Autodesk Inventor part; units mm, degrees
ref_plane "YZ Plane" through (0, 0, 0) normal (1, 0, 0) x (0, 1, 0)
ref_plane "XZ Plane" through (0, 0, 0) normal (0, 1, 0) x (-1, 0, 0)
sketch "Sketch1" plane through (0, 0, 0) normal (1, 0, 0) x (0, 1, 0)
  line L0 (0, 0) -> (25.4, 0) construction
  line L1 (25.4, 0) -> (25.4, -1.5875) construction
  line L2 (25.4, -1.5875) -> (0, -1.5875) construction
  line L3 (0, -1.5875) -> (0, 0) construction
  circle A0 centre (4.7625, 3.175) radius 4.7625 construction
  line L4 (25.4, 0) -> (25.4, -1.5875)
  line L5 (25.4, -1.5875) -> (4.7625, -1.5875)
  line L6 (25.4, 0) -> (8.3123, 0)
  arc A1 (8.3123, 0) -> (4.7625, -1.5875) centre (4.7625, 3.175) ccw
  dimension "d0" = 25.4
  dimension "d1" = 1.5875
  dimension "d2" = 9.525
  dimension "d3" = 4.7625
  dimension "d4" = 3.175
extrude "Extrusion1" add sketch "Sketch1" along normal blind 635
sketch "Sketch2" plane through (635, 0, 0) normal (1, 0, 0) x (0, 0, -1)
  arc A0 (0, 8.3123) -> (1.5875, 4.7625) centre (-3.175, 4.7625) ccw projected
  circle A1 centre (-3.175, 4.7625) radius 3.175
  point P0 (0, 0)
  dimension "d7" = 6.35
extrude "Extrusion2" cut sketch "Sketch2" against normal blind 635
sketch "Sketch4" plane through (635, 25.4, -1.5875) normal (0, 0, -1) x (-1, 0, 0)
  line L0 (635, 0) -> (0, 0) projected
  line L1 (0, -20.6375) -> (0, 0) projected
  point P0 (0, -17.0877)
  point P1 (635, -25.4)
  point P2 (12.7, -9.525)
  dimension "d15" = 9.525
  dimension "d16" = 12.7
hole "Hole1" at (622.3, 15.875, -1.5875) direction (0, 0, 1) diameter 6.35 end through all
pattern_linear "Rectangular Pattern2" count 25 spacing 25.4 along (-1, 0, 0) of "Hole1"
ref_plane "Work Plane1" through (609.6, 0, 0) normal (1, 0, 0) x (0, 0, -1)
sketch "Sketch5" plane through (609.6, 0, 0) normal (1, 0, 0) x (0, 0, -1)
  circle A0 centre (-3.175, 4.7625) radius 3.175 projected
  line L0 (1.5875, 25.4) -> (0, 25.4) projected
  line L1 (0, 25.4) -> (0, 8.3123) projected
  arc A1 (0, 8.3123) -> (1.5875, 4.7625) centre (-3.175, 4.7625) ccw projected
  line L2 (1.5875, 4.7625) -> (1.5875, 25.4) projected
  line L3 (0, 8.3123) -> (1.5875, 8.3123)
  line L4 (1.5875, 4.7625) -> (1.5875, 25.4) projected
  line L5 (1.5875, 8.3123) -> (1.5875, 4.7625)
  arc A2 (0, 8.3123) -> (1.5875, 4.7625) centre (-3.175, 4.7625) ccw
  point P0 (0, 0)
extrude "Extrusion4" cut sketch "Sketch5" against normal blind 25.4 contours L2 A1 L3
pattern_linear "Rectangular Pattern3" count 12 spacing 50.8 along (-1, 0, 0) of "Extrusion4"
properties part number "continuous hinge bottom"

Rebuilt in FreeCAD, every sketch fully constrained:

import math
import FreeCAD as App
import Part
import Sketcher
Q = App.Units.Quantity

doc = App.newDocument("Part")
body = doc.addObject("PartDesign::Body", "Body")

# Sketch on YZ plane
sketch1 = body.newObject("Sketcher::SketchObject", "Sketch")
sketch1.AttachmentSupport = (doc.getObject("YZ_Plane"), [""])
sketch1.MapMode = "FlatFace"
sketch1.addGeometry([
    Part.LineSegment(App.Vector(25.4, -1.6, 0), App.Vector(25.4, 0, 0)),
    Part.LineSegment(App.Vector(25.4, 0, 0), App.Vector(8.3, 0, 0)),
    Part.ArcOfCircle(Part.Circle(App.Vector(4.8, 3.2, 0), App.Vector(0, 0, 1), 4.8), math.radians(-42), math.radians(270)),
    Part.LineSegment(App.Vector(4.8, -1.6, 0), App.Vector(25.4, -1.6, 0)),
], False)
sketch1.addConstraint([
    Sketcher.Constraint("Coincident", 0, 2, 1, 1),
    Sketcher.Constraint("Coincident", 1, 2, 2, 1),
    Sketcher.Constraint("Tangent", 2, 2, 3, 1),
    Sketcher.Constraint("Coincident", 3, 2, 0, 1),
    Sketcher.Constraint("Vertical", 0),
    Sketcher.Constraint("Horizontal", 1),
    Sketcher.Constraint("Horizontal", 3),
    Sketcher.Constraint("PointOnObject", 0, 2, -1),
    Sketcher.Constraint("DistanceX", -1, 1, 0, 2, Q("1 in")),
    Sketcher.Constraint("Radius", 2, Q("0.1875 in")),
    Sketcher.Constraint("DistanceY", 0, 1, 0, 2, Q("0.0625 in")),
    Sketcher.Constraint("DistanceX", -1, 1, 2, 3, Q("0.1875 in")),
])
pad1 = body.newObject("PartDesign::Pad", "Pad")
pad1.Profile = sketch1
pad1.Length = Q("25 in")

# Sketch on YZ plane
sketch2 = body.newObject("Sketcher::SketchObject", "Sketch001")
sketch2.AttachmentSupport = (doc.getObject("YZ_Plane"), [""])
sketch2.MapMode = "FlatFace"
sketch2.AttachmentOffset = App.Placement(App.Vector(0, 0, 25 * 25.4), App.Rotation())
sketch2.addGeometry(Part.Circle(App.Vector(4.8, 3.2, 0), App.Vector(0, 0, 1), 3.2), False)
sketch2.addConstraint([
    Sketcher.Constraint("Diameter", 0, Q("0.25 in")),
    Sketcher.Constraint("DistanceX", -1, 1, 0, 3, Q("0.1875 in")),
    Sketcher.Constraint("DistanceY", -1, 1, 0, 3, Q("0.125 in")),
])
pocket1 = body.newObject("PartDesign::Pocket", "Pocket")
pocket1.Profile = sketch2
pocket1.Length = Q("25 in")

# Sketch on XY plane
sketch3 = body.newObject("Sketcher::SketchObject", "Sketch002")
sketch3.AttachmentSupport = (doc.getObject("XY_Plane"), [""])
sketch3.MapMode = "FlatFace"
sketch3.AttachmentOffset = App.Placement(App.Vector(0, 0, -0.0625 * 25.4), App.Rotation())
sketch3.addGeometry(Part.Circle(App.Vector(622.3, 15.9, 0), App.Vector(0, 0, 1), 3.2), False)
sketch3.addConstraint([
    Sketcher.Constraint("Diameter", 0, Q("0.25 in")),
    Sketcher.Constraint("DistanceX", -1, 1, 0, 3, Q("24.5 in")),
    Sketcher.Constraint("DistanceY", -1, 1, 0, 3, Q("0.625 in")),
])
doc.recompute()
hole = body.newObject("PartDesign::Hole", "Hole")
hole.Profile = sketch3
hole.ThreadType = "None"
hole.Diameter = Q("0.25 in")
hole.DepthType = "ThroughAll"
hole.Reversed = True
doc.recompute()

linearpattern = body.newObject("PartDesign::LinearPattern", "LinearPattern")
linearpattern.Originals = [hole]
linearpattern.Direction = (doc.getObject("X_Axis"), [""])
linearpattern.Mode = "offset"
linearpattern.Offset = Q("1 in")
linearpattern.Occurrences = 25
linearpattern.Reversed = True
body.Tip = linearpattern

# Sketch on YZ plane
sketch4 = body.newObject("Sketcher::SketchObject", "Sketch003")
sketch4.AttachmentSupport = (doc.getObject("YZ_Plane"), [""])
sketch4.MapMode = "FlatFace"
sketch4.AttachmentOffset = App.Placement(App.Vector(0, 0, 24 * 25.4), App.Rotation())
sketch4.addGeometry([
    Part.LineSegment(App.Vector(4.8, -1.6, 0), App.Vector(8.3, -1.6, 0)),
    Part.LineSegment(App.Vector(8.3, -1.6, 0), App.Vector(8.3, 0, 0)),
    Part.ArcOfCircle(Part.Circle(App.Vector(4.8, 3.2, 0), App.Vector(0, 0, 1), 4.8), math.radians(-42), math.radians(270)),
    Part.Circle(App.Vector(4.8, 3.2, 0), App.Vector(0, 0, 1), 3.2),
], False)
sketch4.addConstraint([
    Sketcher.Constraint("Coincident", 0, 2, 1, 1),
    Sketcher.Constraint("Coincident", 1, 2, 2, 1),
    Sketcher.Constraint("Tangent", 2, 2, 0, 1),
    Sketcher.Constraint("Horizontal", 0),
    Sketcher.Constraint("Vertical", 1),
    Sketcher.Constraint("Coincident", 3, 3, 2, 3),
    Sketcher.Constraint("PointOnObject", 1, 2, -1),
    Sketcher.Constraint("Diameter", 3, Q("0.25 in")),
    Sketcher.Constraint("Radius", 2, Q("0.1875 in")),
    Sketcher.Constraint("DistanceY", 1, 1, 1, 2, Q("0.0625 in")),
    Sketcher.Constraint("DistanceX", -1, 1, 2, 3, Q("0.1875 in")),
])
pocket2 = body.newObject("PartDesign::Pocket", "Pocket001")
pocket2.Profile = sketch4
pocket2.Length = Q("1 in")
doc.recompute()

linearpattern2 = body.newObject("PartDesign::LinearPattern", "LinearPattern001")
linearpattern2.Originals = [pocket2]
linearpattern2.Direction = (doc.getObject("X_Axis"), [""])
linearpattern2.Mode = "offset"
linearpattern2.Offset = Q("2 in")
linearpattern2.Occurrences = 12
linearpattern2.Reversed = True
body.Tip = linearpattern2

doc.recompute()
